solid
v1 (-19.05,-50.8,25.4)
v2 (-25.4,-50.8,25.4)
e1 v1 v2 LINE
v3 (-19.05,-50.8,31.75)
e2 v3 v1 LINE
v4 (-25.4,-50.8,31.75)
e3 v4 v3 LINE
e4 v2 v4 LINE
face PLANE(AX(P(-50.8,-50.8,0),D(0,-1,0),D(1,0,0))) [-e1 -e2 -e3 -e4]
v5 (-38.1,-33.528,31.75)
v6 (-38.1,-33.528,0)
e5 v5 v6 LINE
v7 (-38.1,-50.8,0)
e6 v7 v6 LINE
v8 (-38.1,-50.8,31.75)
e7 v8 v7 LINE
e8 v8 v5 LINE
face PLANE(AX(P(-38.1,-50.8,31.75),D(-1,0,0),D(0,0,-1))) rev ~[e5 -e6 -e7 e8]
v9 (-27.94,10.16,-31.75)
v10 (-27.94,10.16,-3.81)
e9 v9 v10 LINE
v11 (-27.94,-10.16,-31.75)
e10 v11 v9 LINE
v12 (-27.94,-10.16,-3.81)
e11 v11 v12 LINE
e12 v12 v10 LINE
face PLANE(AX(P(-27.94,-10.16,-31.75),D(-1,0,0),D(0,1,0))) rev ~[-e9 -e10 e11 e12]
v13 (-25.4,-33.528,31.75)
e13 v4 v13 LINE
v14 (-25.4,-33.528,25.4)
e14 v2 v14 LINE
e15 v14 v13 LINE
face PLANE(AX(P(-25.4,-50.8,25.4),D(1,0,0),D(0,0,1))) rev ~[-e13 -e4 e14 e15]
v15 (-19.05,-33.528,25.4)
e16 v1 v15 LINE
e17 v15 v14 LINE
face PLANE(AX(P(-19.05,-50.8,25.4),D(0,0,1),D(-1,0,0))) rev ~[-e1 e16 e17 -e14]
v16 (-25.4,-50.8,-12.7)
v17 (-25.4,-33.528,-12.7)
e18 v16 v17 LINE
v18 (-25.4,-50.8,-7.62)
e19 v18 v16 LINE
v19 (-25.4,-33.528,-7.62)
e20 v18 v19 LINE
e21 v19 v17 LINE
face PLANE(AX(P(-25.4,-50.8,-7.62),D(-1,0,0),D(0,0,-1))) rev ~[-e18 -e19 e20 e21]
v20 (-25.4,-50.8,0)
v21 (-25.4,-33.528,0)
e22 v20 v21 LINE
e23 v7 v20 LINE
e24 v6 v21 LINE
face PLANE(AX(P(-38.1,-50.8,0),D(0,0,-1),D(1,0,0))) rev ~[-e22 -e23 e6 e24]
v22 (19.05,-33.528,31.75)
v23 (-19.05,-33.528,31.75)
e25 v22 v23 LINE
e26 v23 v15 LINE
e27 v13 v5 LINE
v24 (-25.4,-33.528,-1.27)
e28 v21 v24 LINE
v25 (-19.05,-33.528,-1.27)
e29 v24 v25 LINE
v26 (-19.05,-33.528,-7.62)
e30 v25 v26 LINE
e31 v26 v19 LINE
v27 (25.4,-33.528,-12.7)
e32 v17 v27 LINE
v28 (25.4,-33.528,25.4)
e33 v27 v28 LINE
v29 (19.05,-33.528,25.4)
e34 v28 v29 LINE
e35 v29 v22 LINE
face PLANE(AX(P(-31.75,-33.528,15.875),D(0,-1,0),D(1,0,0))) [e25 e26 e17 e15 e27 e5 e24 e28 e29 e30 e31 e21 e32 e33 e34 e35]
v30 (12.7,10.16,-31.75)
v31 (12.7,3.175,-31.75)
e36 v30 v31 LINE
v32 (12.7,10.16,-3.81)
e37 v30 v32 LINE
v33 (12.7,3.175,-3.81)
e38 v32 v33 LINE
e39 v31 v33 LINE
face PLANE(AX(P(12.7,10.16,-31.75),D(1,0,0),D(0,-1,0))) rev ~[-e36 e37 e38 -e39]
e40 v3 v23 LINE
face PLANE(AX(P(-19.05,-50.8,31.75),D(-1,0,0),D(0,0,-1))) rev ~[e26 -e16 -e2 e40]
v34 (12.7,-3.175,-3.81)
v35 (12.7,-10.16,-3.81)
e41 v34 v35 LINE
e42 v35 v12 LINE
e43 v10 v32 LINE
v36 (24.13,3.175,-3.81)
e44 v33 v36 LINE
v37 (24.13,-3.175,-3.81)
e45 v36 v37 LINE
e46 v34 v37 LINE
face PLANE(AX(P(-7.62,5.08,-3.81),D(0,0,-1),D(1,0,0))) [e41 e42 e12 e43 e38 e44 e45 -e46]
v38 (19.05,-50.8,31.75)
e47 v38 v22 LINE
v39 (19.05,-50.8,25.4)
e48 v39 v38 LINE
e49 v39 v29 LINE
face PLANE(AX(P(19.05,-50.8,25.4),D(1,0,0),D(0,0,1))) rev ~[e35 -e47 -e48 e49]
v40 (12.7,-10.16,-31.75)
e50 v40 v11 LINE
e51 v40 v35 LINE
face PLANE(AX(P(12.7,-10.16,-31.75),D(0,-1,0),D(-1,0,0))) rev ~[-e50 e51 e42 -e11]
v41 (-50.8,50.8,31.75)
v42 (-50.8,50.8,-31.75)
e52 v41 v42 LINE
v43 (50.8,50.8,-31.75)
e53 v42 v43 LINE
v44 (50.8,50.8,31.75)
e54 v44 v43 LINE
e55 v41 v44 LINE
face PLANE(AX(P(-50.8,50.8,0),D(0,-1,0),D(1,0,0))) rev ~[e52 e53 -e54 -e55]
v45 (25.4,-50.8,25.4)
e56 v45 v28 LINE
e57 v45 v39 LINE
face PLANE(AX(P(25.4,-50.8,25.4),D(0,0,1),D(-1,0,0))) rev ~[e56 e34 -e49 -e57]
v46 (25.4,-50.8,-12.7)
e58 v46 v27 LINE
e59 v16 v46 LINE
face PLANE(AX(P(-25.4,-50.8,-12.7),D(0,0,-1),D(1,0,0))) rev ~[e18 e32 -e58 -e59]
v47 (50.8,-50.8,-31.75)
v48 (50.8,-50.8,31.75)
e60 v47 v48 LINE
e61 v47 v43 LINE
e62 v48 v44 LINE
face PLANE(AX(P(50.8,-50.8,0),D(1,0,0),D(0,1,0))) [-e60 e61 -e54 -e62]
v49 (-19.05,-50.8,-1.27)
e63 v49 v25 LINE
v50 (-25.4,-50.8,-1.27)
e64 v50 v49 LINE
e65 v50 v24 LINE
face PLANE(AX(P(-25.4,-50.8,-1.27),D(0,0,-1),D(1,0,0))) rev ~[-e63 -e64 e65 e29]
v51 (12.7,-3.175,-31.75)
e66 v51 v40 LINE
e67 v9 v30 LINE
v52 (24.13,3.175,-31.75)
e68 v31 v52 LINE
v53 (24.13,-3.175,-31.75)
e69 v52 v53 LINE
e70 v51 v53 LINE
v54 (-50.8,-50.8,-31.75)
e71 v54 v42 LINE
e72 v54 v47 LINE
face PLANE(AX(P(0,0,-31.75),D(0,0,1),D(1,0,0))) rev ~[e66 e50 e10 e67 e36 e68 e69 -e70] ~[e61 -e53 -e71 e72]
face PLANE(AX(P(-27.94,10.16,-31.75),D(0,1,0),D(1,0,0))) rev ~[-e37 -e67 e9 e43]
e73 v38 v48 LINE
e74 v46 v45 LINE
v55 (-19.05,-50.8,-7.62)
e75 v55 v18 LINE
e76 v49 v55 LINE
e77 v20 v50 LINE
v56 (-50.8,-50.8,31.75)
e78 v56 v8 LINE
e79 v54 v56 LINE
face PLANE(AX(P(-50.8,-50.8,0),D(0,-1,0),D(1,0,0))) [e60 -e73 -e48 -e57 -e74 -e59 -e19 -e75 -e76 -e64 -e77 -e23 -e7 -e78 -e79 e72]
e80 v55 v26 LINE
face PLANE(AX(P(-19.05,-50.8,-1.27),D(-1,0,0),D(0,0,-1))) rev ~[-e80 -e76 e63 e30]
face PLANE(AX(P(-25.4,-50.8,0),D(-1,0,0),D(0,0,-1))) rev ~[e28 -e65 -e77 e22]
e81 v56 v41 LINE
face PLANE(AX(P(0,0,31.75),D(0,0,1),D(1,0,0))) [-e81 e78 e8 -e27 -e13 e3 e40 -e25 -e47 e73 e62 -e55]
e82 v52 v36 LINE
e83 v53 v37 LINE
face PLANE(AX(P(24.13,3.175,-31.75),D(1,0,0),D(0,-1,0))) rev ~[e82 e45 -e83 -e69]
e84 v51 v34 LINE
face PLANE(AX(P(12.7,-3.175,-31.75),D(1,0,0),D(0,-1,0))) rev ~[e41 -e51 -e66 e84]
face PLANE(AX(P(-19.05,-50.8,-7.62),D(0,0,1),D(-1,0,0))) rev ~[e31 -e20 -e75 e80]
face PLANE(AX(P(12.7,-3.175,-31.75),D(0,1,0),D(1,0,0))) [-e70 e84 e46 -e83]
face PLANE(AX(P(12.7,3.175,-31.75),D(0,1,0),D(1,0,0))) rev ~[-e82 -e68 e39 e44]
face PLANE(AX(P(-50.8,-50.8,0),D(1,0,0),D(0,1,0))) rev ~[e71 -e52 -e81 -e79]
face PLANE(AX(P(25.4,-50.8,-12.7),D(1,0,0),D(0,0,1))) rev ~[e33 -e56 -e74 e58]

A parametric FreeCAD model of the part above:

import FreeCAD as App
import Part
import Sketcher
from FreeCAD import Vector
Q = App.Units.Quantity


def add_polygon(sketch, points):
    """Adds a closed chain of lines whose ends are joined by coincident constraints."""
    first, n = sketch.GeometryCount, len(points)
    for a, b in zip(points, points[1:] + points[:1]):
        sketch.addGeometry(Part.LineSegment(App.Vector(*a, 0), App.Vector(*b, 0)), False)
    for i in range(n):
        sketch.addConstraint(Sketcher.Constraint("Coincident", first + i, 2, first + (i + 1) % n, 1))

doc = App.newDocument("Part")
body = doc.addObject("PartDesign::Body", "Body")

sketch1 = body.newObject("Sketcher::SketchObject", "Sketch")
sketch1.AttachmentSupport = (doc.getObject("XY_Plane"), [""])
sketch1.MapMode = "FlatFace"
add_polygon(sketch1, [(-51, 51), (-51, -51), (51, -51), (51, 51)])
sketch1.addConstraint([
    Sketcher.Constraint("Vertical", 0),
    Sketcher.Constraint("Horizontal", 1),
    Sketcher.Constraint("Vertical", 2),
    Sketcher.Constraint("Horizontal", 3),
    Sketcher.Constraint("Symmetric", 0, 2, 2, 2, -1, 1),
    Sketcher.Constraint("Equal", 3, 0),
    Sketcher.Constraint("DistanceX", 1, 1, 1, 2, Q("4 in")),
])
pad1 = body.newObject("PartDesign::Pad", "Pad")
pad1.Profile = sketch1
pad1.Length = Q("2.5 in")
pad1.Midplane = True

sketch2 = body.newObject("Sketcher::SketchObject", "Sketch001")
sketch2.AttachmentSupport = (doc.getObject("XY_Plane"), [""])
sketch2.MapMode = "FlatFace"
sketch2.AttachmentOffset = App.Placement(Vector(0, 0, -1.25 * 25.4), App.Rotation())
add_polygon(sketch2, [(-28, 10), (13, 10), (13, 3), (24, 3), (24, -3), (13, -3), (13, -10), (-28, -10)])
sketch2.addConstraint([
    Sketcher.Constraint("Horizontal", 0),
    Sketcher.Constraint("Vertical", 1),
    Sketcher.Constraint("Horizontal", 2),
    Sketcher.Constraint("Vertical", 3),
    Sketcher.Constraint("Horizontal", 4),
    Sketcher.Constraint("Vertical", 5),
    Sketcher.Constraint("Horizontal", 6),
    Sketcher.Constraint("Vertical", 7),
    Sketcher.Constraint("Symmetric", 1, 2, 4, 2, -1),
    Sketcher.Constraint("Equal", 1, 5),
    Sketcher.Constraint("DistanceX", 0, 1, 0, 2, Q("1.6 in")),
    Sketcher.Constraint("DistanceY", 7, 1, 7, 2, Q("0.8 in")),
    Sketcher.Constraint("DistanceX", 2, 1, 2, 2, Q("0.45 in")),
    Sketcher.Constraint("DistanceY", 3, 2, 3, 1, Q("0.25 in")),
    Sketcher.Constraint("DistanceX", -1, 1, 0, 2, Q("0.5 in")),
])
pocket1 = body.newObject("PartDesign::Pocket", "Pocket")
pocket1.Profile = sketch2
pocket1.Length = Q("1.1 in")
pocket1.Reversed = True

sketch3 = body.newObject("Sketcher::SketchObject", "Sketch002")
sketch3.AttachmentSupport = (doc.getObject("XZ_Plane"), [""])
sketch3.MapMode = "FlatFace"
sketch3.AttachmentOffset = App.Placement(Vector(0, 0, 2 * 25.4), App.Rotation())
add_polygon(sketch3, [(-38.1, 0), (-25.4, 0), (-25.4, -1.3), (-19.1, -1.3), (-19.1, -7.6), (-25.4, -7.6), (-25.4, -12.7), (25.4, -12.7), (25.4, 25.4), (19.1, 25.4), (19.1, 31.8), (-19.1, 31.8), (-19.1, 25.4), (-25.4, 25.4), (-25.4, 31.8), (-38.1, 31.8)])
sketch3.addConstraint([
    Sketcher.Constraint("Horizontal", 0),
    Sketcher.Constraint("Vertical", 1),
    Sketcher.Constraint("Horizontal", 2),
    Sketcher.Constraint("Vertical", 3),
    Sketcher.Constraint("Horizontal", 4),
    Sketcher.Constraint("Vertical", 5),
    Sketcher.Constraint("Horizontal", 6),
    Sketcher.Constraint("Vertical", 7),
    Sketcher.Constraint("Horizontal", 8),
    Sketcher.Constraint("Vertical", 9),
    Sketcher.Constraint("Horizontal", 10),
    Sketcher.Constraint("Vertical", 11),
    Sketcher.Constraint("Horizontal", 12),
    Sketcher.Constraint("Vertical", 13),
    Sketcher.Constraint("Horizontal", 14),
    Sketcher.Constraint("Vertical", 15),
    Sketcher.Constraint("Symmetric", 8, 2, 11, 2, -2),
    Sketcher.Constraint("PointOnObject", 0, 2, -1),
    Sketcher.Constraint("Horizontal", 10, 2, 13, 2),
    Sketcher.Constraint("Vertical", 1, 2, 4, 2),
    Sketcher.Constraint("Vertical", 3, 2, 10, 2),
    Sketcher.Constraint("Vertical", 5, 2, 12, 2),
    Sketcher.Constraint("Equal", 4, 8),
    Sketcher.Constraint("Equal", 12, 3),
    Sketcher.Constraint("Equal", 10, 7),
    Sketcher.Constraint("Equal", 3, 9),
    Sketcher.Constraint("DistanceX", 6, 1, 6, 2, Q("2 in")),
    Sketcher.Constraint("DistanceX", 0, 1, 0, 2, Q("0.5 in")),
    Sketcher.Constraint("DistanceX", 10, 2, 10, 1, Q("1.5 in")),
    Sketcher.Constraint("DistanceY", 5, 2, 5, 1, Q("0.2 in")),
    Sketcher.Constraint("DistanceY", -1, 1, 7, 2, Q("1 in")),
])
pocket2 = body.newObject("PartDesign::Pocket", "Pocket001")
pocket2.Profile = sketch3
pocket2.Length = Q("0.68 in")

doc.recompute()
